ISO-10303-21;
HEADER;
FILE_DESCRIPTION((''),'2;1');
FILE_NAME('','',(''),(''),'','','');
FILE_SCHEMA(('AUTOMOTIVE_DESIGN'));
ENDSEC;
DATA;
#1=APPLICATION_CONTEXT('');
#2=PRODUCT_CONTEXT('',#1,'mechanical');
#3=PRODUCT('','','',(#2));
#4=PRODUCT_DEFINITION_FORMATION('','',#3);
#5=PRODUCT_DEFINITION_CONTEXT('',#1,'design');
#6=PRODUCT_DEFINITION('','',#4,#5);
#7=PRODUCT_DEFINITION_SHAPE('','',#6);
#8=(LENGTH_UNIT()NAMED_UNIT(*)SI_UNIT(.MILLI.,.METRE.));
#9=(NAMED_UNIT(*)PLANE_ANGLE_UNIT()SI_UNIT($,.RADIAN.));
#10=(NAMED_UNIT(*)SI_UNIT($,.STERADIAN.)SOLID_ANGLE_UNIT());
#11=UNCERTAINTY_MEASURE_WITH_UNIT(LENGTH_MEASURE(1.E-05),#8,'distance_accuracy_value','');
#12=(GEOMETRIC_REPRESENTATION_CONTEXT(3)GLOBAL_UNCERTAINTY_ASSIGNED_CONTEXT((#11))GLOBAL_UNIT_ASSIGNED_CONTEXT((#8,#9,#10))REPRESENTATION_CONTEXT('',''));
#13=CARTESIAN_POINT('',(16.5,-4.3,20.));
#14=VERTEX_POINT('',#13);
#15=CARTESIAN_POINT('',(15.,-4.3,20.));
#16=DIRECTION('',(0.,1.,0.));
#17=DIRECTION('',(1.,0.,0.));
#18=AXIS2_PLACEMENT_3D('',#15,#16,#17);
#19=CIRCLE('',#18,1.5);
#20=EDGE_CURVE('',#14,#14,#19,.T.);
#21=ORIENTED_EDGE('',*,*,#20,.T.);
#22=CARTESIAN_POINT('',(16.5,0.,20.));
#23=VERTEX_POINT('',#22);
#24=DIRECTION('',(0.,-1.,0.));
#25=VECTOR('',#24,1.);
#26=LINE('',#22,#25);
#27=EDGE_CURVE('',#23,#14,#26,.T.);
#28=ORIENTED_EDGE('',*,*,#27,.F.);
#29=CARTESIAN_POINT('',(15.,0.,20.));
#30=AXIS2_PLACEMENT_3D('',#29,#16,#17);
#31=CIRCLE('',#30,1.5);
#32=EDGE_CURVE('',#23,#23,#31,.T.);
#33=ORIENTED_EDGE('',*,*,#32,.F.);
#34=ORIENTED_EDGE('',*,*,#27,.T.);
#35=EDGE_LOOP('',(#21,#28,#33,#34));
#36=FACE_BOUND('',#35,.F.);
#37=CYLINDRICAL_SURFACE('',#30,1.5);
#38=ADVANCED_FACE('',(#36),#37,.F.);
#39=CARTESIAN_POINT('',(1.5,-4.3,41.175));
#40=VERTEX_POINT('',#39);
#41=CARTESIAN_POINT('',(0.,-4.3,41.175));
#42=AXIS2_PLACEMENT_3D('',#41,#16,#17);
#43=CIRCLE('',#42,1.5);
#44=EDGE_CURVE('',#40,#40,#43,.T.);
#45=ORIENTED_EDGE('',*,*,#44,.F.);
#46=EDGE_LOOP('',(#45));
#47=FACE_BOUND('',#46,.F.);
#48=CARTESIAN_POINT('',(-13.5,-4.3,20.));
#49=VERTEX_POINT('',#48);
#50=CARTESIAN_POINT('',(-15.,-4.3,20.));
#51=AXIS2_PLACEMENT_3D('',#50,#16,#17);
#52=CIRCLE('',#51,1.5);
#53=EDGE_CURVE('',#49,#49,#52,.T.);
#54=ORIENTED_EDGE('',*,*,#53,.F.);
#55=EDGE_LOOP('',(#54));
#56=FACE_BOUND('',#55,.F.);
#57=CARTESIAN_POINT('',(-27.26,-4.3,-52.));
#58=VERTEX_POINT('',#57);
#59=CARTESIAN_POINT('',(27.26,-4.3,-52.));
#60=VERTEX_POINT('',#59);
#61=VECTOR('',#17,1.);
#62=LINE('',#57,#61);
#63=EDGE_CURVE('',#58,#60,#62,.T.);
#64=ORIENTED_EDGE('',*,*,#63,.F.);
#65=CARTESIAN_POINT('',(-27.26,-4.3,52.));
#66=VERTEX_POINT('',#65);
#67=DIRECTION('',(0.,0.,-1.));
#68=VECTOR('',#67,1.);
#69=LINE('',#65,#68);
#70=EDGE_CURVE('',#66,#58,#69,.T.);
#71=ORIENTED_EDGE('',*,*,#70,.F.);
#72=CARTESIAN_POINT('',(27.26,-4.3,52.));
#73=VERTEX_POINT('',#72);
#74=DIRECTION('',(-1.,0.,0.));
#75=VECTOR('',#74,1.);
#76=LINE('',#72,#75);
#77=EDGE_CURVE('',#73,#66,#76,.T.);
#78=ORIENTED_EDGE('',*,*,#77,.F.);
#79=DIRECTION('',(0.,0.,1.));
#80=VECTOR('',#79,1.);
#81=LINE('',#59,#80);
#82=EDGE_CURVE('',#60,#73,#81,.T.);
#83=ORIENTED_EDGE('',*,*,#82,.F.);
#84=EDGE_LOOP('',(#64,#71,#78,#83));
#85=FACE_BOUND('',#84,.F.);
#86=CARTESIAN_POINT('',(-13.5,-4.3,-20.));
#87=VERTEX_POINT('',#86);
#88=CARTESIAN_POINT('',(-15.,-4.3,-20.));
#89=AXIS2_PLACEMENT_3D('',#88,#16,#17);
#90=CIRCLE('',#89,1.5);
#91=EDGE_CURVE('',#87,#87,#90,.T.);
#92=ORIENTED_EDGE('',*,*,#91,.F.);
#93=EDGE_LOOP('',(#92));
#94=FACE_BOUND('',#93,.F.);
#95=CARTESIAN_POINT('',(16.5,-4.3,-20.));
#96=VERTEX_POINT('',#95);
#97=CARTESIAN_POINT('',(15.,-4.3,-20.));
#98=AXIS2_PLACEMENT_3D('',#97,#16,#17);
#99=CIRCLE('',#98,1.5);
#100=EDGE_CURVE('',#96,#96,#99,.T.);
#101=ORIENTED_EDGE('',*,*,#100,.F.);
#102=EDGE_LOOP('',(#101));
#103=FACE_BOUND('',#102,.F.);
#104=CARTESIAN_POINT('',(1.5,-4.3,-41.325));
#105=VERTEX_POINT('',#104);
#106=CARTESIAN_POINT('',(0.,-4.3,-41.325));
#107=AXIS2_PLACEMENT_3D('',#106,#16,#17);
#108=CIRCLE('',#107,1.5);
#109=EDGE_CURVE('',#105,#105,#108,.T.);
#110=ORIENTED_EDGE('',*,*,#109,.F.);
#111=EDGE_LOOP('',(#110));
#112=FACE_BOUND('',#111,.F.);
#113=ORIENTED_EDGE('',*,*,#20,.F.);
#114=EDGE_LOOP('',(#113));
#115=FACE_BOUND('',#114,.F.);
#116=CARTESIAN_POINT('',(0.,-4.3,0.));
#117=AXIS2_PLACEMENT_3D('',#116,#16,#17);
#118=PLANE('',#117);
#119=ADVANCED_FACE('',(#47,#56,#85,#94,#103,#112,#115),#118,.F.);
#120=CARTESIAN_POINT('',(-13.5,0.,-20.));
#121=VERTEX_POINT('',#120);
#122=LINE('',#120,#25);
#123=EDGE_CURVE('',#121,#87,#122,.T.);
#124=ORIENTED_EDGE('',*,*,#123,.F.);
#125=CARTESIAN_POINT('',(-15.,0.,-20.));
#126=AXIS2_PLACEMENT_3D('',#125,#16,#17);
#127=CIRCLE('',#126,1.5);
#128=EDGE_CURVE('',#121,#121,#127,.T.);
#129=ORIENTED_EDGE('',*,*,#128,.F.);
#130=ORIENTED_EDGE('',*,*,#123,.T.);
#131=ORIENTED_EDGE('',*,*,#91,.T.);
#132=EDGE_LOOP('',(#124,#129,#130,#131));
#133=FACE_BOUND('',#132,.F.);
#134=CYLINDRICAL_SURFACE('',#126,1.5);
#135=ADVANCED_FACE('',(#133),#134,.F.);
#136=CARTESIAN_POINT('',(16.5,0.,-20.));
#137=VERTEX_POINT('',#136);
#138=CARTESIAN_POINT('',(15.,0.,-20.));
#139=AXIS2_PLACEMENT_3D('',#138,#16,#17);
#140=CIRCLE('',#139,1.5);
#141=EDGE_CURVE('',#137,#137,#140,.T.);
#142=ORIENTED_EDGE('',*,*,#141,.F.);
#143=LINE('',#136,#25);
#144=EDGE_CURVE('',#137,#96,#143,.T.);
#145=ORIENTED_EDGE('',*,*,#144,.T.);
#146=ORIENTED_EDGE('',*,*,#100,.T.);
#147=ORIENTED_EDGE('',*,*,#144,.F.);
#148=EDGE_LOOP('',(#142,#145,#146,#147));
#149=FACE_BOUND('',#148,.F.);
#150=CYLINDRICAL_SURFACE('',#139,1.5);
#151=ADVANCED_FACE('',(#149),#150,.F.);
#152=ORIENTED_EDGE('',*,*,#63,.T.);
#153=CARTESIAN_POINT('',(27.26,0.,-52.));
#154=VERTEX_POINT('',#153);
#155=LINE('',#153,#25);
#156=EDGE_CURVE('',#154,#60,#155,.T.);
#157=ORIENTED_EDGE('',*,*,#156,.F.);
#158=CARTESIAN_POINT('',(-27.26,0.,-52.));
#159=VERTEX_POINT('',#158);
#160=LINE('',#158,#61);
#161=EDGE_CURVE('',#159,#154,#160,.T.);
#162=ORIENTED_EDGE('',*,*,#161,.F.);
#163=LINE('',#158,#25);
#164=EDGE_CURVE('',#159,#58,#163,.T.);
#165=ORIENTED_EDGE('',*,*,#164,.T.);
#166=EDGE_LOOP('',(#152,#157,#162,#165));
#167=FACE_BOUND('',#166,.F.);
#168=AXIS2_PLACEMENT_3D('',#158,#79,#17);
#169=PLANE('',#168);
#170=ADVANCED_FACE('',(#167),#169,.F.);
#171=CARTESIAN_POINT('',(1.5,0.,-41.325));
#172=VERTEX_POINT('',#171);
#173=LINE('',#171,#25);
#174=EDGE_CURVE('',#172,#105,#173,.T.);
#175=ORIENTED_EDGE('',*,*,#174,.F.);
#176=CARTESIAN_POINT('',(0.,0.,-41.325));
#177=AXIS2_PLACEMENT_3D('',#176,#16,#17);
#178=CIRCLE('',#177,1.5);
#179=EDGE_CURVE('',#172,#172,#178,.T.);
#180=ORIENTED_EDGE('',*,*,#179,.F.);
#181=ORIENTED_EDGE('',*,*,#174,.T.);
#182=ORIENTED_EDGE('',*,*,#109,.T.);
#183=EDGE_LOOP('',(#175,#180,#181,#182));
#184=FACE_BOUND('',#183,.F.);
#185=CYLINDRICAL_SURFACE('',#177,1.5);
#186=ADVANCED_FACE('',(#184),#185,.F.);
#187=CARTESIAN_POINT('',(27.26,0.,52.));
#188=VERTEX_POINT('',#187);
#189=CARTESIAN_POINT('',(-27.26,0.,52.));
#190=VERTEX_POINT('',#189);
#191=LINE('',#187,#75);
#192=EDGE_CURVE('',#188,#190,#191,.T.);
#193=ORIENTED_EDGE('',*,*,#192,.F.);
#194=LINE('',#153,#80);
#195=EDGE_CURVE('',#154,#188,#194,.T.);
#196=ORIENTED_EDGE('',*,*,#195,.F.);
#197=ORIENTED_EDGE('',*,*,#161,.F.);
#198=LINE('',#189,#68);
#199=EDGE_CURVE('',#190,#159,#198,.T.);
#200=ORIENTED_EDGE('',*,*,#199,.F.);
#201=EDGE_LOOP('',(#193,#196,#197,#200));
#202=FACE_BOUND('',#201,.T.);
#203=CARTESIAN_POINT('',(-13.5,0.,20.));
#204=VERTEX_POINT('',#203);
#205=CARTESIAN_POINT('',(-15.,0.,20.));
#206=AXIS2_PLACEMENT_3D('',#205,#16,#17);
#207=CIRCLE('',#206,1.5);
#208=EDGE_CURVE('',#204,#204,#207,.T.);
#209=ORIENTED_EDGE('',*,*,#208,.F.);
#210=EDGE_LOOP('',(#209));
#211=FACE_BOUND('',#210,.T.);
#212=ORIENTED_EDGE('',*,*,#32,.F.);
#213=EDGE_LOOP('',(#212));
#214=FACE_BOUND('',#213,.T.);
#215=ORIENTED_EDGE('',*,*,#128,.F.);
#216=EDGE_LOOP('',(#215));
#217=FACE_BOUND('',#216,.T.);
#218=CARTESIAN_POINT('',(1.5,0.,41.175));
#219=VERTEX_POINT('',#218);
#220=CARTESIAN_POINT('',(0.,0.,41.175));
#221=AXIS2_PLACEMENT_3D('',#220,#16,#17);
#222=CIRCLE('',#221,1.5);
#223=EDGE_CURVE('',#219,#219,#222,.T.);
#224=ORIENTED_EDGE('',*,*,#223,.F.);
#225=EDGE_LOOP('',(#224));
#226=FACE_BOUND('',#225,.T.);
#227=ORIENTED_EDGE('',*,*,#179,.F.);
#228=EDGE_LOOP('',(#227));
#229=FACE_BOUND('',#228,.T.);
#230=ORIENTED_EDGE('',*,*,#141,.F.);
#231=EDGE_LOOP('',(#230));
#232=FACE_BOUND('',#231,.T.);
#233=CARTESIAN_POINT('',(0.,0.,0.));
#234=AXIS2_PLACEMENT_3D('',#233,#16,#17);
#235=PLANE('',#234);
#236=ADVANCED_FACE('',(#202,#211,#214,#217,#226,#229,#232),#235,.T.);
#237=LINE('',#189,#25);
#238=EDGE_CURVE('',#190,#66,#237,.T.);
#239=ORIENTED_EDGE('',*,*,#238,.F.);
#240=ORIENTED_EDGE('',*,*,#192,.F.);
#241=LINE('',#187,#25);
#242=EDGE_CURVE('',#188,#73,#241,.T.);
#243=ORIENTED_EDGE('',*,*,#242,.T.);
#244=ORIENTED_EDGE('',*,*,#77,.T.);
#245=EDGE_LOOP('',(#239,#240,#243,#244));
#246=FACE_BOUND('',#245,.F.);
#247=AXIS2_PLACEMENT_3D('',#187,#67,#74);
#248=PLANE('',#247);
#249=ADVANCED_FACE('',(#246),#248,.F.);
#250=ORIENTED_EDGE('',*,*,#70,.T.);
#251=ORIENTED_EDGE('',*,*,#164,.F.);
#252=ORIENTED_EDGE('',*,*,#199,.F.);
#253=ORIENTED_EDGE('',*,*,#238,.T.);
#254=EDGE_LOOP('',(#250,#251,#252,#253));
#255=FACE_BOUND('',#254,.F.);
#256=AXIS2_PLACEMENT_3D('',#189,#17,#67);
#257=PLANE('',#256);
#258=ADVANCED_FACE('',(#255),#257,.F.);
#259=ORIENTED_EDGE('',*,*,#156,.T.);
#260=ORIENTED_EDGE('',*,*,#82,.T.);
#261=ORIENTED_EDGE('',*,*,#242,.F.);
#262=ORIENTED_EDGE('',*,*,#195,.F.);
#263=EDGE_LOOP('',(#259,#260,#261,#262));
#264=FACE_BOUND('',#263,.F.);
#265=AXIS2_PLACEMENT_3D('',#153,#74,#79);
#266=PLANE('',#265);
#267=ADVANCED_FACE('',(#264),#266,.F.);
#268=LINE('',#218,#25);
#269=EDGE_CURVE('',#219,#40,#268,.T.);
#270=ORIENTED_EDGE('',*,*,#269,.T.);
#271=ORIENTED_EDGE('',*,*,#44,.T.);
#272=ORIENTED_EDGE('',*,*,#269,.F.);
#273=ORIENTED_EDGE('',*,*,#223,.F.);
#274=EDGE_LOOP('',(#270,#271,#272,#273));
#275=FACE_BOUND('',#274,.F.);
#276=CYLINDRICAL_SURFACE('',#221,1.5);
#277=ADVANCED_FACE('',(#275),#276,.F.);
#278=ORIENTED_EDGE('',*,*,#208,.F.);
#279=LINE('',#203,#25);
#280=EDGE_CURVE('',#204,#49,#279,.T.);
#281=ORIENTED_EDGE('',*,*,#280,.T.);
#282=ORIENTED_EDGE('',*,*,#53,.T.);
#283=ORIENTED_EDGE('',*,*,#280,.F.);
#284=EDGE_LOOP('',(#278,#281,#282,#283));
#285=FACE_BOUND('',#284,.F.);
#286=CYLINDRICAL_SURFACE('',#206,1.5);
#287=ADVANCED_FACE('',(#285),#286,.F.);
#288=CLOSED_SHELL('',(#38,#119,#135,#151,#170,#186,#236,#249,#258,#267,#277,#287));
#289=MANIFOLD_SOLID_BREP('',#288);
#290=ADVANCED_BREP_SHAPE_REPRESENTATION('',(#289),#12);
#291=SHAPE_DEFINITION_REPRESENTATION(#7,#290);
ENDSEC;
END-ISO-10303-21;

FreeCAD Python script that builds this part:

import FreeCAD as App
import Part
import Sketcher

V = App.Vector
Q = App.Units.Quantity


def add_polygon(sketch, points):
    """Adds a closed chain of lines whose ends are joined by coincident constraints."""
    first, n = sketch.GeometryCount, len(points)
    for a, b in zip(points, points[1:] + points[:1]):
        sketch.addGeometry(Part.LineSegment(App.Vector(*a, 0), App.Vector(*b, 0)), False)
    for i in range(n):
        sketch.addConstraint(Sketcher.Constraint("Coincident", first + i, 2, first + (i + 1) % n, 1))

doc = App.newDocument("Part")
params = doc.addObject("Spreadsheet::Sheet", "Params")
for row, (alias, value) in enumerate([
    ("sketch1_height", "104 mm"),
    ("sketch1_width", "54.52 mm"),
    ("pad1_length", "4.3 mm"),
    ("sketch2_diameter", "3 mm"),
    ("pocket1_length", "4.3 mm"),
], start=1):
    params.set(f"A{row}", alias)
    params.set(f"B{row}", "=" + value)
    params.setAlias(f"B{row}", alias)

body = doc.addObject("PartDesign::Body", "Body")

# Sketch on XZ plane
sketch1 = body.newObject("Sketcher::SketchObject", "Sketch")
sketch1.AttachmentSupport = (doc.getObject("XZ_Plane"), [""])
sketch1.MapMode = "FlatFace"
add_polygon(sketch1, [(-27, -52), (-27, 52), (27, 52), (27, -52)])  # lines 0-3
sketch1.addConstraint(Sketcher.Constraint("Vertical", 0))
sketch1.addConstraint(Sketcher.Constraint("Horizontal", 1))
sketch1.addConstraint(Sketcher.Constraint("Vertical", 2))
sketch1.addConstraint(Sketcher.Constraint("Horizontal", 3))
sketch1.addConstraint(Sketcher.Constraint("Symmetric", 0, 2, 2, 2, -1, 1))
sketch1.addConstraint(Sketcher.Constraint("DistanceY", 0, 1, 0, 2, Q("104 mm")))
sketch1.addConstraint(Sketcher.Constraint("DistanceX", 1, 1, 1, 2, Q("54.52 mm")))
sketch1.setExpression("Constraints[9]", "Params.sketch1_height")
sketch1.setExpression("Constraints[10]", "Params.sketch1_width")
pad1 = body.newObject("PartDesign::Pad", "Pad")
pad1.Profile = sketch1
pad1.setExpression("Length", "Params.pad1_length")

# Sketch on XZ plane
sketch2 = body.newObject("Sketcher::SketchObject", "Sketch001")
sketch2.AttachmentSupport = (doc.getObject("XZ_Plane"), [""])
sketch2.MapMode = "FlatFace"
sketch2.addGeometry(Part.Circle(V(-15, 20, 0), V(0, 0, 1), 1.5), False)
sketch2.addGeometry(Part.Circle(V(15, 20, 0), V(0, 0, 1), 1.5), False)
sketch2.addGeometry(Part.Circle(V(-15, -20, 0), V(0, 0, 1), 1.5), False)
sketch2.addGeometry(Part.Circle(V(15, -20, 0), V(0, 0, 1), 1.5), False)
sketch2.addGeometry(Part.Circle(V(0, -41.3, 0), V(0, 0, 1), 1.5), False)
sketch2.addGeometry(Part.Circle(V(0, 41.2, 0), V(0, 0, 1), 1.5), False)
sketch2.addConstraint(Sketcher.Constraint("Equal", 0, 1))
sketch2.addConstraint(Sketcher.Constraint("Equal", 1, 2))
sketch2.addConstraint(Sketcher.Constraint("Equal", 2, 3))
sketch2.addConstraint(Sketcher.Constraint("Equal", 3, 4))
sketch2.addConstraint(Sketcher.Constraint("Equal", 4, 5))
sketch2.addConstraint(Sketcher.Constraint("Symmetric", 1, 3, 2, 3, -1, 1))
sketch2.addConstraint(Sketcher.Constraint("Symmetric", 0, 3, 3, 3, -1, 1))
sketch2.addConstraint(Sketcher.Constraint("Symmetric", 0, 3, 1, 3, -2))
sketch2.addConstraint(Sketcher.Constraint("PointOnObject", 4, 3, -2))
sketch2.addConstraint(Sketcher.Constraint("PointOnObject", 5, 3, -2))
sketch2.addConstraint(Sketcher.Constraint("Diameter", 0, Q("3 mm")))
sketch2.addConstraint(Sketcher.Constraint("DistanceX", 0, 3, -1, 1, Q("15 mm")))
sketch2.addConstraint(Sketcher.Constraint("DistanceY", -1, 1, 0, 3, Q("20 mm")))
sketch2.addConstraint(Sketcher.Constraint("DistanceY", 4, 3, 5, 3, Q("82.5 mm")))
sketch2.addConstraint(Sketcher.Constraint("DistanceY", 4, 3, -1, 1, Q("41.325 mm")))
sketch2.setExpression("Constraints[10]", "Params.sketch2_diameter")
pocket1 = body.newObject("PartDesign::Pocket", "Pocket")
pocket1.Profile = sketch2
pocket1.setExpression("Length", "Params.pocket1_length")
pocket1.Reversed = True

doc.recompute()
